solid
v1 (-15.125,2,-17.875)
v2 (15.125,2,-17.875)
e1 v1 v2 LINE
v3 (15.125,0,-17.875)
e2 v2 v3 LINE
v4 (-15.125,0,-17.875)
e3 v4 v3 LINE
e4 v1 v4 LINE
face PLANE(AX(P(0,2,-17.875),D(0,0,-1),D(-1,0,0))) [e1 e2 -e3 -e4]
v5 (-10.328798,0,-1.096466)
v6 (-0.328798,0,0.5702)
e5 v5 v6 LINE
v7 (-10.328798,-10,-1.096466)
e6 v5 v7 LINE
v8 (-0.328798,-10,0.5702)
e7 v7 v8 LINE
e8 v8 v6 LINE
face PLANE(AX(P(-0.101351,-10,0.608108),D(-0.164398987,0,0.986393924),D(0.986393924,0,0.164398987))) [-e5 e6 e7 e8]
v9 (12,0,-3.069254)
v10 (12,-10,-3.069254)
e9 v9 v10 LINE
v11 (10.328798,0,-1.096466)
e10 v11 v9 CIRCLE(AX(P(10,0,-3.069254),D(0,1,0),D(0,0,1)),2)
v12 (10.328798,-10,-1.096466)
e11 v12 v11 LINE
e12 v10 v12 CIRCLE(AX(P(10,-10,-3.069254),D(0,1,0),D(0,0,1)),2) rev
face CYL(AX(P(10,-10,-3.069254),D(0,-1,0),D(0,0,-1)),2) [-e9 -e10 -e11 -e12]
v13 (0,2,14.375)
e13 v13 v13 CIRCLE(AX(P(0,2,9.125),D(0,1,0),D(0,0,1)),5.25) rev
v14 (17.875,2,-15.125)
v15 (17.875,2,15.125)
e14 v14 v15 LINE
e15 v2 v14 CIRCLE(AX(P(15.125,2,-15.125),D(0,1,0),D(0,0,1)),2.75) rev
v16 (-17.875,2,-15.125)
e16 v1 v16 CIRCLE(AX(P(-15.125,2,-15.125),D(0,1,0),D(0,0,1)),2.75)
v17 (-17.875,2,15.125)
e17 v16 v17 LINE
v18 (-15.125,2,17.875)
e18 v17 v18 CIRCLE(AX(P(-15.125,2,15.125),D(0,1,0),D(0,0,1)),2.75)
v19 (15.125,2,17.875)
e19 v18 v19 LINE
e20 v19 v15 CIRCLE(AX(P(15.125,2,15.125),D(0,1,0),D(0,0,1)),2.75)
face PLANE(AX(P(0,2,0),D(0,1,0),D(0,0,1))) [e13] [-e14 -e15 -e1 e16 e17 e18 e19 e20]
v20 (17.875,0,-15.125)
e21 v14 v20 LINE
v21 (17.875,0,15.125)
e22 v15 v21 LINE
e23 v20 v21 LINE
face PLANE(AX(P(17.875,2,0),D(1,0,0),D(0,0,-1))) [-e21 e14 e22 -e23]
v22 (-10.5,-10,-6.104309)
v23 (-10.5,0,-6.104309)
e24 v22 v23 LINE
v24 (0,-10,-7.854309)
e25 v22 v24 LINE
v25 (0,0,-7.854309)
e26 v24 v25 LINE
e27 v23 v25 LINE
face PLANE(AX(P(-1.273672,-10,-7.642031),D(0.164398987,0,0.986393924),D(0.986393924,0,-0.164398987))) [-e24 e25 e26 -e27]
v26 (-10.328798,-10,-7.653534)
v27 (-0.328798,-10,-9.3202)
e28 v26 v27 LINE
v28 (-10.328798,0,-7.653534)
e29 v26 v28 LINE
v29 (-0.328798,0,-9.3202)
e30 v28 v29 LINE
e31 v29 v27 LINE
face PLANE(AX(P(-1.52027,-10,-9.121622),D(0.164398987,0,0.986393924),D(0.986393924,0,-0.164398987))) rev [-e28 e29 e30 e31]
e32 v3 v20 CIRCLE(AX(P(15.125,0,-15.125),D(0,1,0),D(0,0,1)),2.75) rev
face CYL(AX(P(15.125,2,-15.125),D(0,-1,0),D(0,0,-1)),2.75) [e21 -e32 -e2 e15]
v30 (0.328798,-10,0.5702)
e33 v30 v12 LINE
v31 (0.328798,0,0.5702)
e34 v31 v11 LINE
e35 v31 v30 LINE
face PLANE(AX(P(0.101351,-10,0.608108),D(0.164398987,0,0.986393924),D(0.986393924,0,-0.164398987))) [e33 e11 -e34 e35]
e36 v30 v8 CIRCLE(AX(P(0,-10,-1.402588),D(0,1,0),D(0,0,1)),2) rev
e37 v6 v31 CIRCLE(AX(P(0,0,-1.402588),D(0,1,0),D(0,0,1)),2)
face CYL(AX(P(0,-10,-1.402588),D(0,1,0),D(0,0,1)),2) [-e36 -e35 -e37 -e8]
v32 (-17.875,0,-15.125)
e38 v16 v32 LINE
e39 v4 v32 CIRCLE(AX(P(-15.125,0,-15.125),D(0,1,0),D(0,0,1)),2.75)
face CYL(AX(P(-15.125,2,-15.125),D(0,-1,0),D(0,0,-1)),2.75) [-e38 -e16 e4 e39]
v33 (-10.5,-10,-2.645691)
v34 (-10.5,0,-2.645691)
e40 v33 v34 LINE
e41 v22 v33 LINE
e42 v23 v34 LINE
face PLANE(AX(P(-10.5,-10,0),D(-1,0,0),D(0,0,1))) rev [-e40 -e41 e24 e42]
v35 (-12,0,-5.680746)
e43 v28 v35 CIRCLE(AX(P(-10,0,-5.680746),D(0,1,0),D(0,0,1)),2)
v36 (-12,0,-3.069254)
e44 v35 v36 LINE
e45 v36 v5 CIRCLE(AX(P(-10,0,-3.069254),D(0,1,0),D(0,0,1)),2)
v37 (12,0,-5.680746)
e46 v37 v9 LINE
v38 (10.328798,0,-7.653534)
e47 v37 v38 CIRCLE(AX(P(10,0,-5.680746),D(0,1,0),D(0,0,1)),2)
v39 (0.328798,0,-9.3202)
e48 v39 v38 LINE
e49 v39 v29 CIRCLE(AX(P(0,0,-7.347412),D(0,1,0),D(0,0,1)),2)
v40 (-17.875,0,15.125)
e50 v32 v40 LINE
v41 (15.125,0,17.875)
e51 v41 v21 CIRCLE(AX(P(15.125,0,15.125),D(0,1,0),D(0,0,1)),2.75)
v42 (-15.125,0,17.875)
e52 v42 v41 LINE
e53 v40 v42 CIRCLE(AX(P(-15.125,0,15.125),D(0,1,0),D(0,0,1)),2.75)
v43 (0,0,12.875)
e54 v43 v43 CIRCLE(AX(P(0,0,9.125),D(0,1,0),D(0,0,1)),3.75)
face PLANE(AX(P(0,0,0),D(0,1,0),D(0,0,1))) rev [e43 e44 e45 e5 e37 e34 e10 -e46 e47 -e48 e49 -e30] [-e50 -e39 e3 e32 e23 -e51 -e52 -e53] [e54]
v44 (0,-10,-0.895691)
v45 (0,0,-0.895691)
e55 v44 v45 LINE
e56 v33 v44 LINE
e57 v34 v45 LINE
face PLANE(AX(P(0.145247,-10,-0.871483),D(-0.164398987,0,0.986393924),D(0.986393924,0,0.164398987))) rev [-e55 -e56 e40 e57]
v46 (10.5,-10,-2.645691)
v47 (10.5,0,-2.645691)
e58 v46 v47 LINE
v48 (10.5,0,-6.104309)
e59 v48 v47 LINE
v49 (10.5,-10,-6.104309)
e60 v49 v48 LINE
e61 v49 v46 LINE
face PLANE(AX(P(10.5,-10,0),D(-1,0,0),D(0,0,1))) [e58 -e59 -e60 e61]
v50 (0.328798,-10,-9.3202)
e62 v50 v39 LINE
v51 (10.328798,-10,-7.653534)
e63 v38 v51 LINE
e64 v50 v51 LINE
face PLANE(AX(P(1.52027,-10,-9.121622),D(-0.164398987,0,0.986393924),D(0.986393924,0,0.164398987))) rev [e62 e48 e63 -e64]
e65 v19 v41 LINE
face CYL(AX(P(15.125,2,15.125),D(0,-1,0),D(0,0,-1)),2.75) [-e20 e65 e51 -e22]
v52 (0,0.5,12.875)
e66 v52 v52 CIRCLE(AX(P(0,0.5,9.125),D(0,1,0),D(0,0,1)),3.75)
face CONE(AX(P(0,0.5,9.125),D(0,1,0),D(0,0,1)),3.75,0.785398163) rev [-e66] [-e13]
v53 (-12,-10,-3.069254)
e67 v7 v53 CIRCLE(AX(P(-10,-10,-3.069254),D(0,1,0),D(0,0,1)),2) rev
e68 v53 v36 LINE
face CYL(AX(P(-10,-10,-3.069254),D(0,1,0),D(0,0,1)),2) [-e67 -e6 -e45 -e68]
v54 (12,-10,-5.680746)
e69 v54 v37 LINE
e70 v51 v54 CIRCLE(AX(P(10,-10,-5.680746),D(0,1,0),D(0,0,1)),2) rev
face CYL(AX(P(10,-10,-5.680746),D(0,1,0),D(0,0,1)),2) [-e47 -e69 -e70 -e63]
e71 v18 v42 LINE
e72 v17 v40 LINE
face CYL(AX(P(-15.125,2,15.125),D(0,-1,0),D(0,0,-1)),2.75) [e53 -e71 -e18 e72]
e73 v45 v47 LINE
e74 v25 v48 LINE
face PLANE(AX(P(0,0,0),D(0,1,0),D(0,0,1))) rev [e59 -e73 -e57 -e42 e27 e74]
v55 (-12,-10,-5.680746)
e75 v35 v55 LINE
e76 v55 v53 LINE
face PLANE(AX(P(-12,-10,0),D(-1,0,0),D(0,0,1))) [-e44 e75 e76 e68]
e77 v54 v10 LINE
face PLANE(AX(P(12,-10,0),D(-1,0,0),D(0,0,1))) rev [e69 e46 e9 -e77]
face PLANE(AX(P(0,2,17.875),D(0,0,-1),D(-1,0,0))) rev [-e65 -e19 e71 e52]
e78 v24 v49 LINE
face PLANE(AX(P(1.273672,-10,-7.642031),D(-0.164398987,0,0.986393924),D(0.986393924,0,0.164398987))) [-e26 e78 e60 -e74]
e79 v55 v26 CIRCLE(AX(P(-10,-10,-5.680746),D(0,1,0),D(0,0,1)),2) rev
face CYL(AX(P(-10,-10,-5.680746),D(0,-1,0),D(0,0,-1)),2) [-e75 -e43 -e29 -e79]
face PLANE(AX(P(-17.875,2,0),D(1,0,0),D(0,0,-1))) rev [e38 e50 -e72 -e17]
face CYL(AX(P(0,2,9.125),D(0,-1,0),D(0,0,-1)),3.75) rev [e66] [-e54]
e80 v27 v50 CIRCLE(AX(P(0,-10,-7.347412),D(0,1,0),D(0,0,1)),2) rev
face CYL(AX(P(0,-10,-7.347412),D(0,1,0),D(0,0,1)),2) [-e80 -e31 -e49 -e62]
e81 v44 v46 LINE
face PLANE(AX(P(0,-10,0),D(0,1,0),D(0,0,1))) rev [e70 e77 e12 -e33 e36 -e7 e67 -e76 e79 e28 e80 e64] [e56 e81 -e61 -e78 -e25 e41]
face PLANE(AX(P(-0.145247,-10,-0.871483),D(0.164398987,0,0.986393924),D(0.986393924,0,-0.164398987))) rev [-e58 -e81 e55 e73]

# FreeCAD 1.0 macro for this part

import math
import FreeCAD as App
import Part
import Sketcher

V = App.Vector
Q = App.Units.Quantity


def edges_at(feature, points):
    """Names of the edges that pass closest to the given points."""
    edges = feature.Shape.Edges
    near = lambda p: min(range(len(edges)), key=lambda i: edges[i].distToShape(Part.Vertex(*p))[0])
    return sorted({f"Edge{near(p) + 1}" for p in points})

doc = App.newDocument("Part")
body = doc.addObject("PartDesign::Body", "Body")

# Sketch on XZ plane
sketch1 = body.newObject("Sketcher::SketchObject", "Sketch")
sketch1.AttachmentSupport = (doc.getObject("XZ_Plane"), [""])
sketch1.MapMode = "FlatFace"
sketch1.addGeometry(Part.LineSegment(V(15.1, -17.9, 0), V(-15.1, -17.9, 0)), False)
sketch1.addGeometry(Part.ArcOfCircle(Part.Circle(V(-15.1, -15.1, 0), V(0, 0, 1), 2.8), math.radians(-180), math.radians(-90)), False)
sketch1.addGeometry(Part.LineSegment(V(-17.9, -15.1, 0), V(-17.9, 15.1, 0)), False)
sketch1.addGeometry(Part.ArcOfCircle(Part.Circle(V(-15.1, 15.1, 0), V(0, 0, 1), 2.8), math.radians(90), math.radians(180)), False)
sketch1.addGeometry(Part.LineSegment(V(-15.1, 17.9, 0), V(15.1, 17.9, 0)), False)
sketch1.addGeometry(Part.ArcOfCircle(Part.Circle(V(15.1, 15.1, 0), V(0, 0, 1), 2.8), math.radians(0), math.radians(90)), False)
sketch1.addGeometry(Part.LineSegment(V(17.9, 15.1, 0), V(17.9, -15.1, 0)), False)
sketch1.addGeometry(Part.ArcOfCircle(Part.Circle(V(15.1, -15.1, 0), V(0, 0, 1), 2.8), math.radians(-90), math.radians(0)), False)
sketch1.addGeometry(Part.Circle(V(0, 9.1, 0), V(0, 0, 1), 3.8), False)
sketch1.addConstraint(Sketcher.Constraint("Tangent", 0, 2, 1, 2))
sketch1.addConstraint(Sketcher.Constraint("Tangent", 1, 1, 2, 1))
sketch1.addConstraint(Sketcher.Constraint("Tangent", 2, 2, 3, 2))
sketch1.addConstraint(Sketcher.Constraint("Tangent", 3, 1, 4, 1))
sketch1.addConstraint(Sketcher.Constraint("Tangent", 4, 2, 5, 2))
sketch1.addConstraint(Sketcher.Constraint("Tangent", 5, 1, 6, 1))
sketch1.addConstraint(Sketcher.Constraint("Tangent", 6, 2, 7, 2))
sketch1.addConstraint(Sketcher.Constraint("Tangent", 7, 1, 0, 1))
sketch1.addConstraint(Sketcher.Constraint("Horizontal", 0))
sketch1.addConstraint(Sketcher.Constraint("Vertical", 2))
sketch1.addConstraint(Sketcher.Constraint("Horizontal", 4))
sketch1.addConstraint(Sketcher.Constraint("Vertical", 6))
sketch1.addConstraint(Sketcher.Constraint("Equal", 1, 3))
sketch1.addConstraint(Sketcher.Constraint("Equal", 3, 5))
sketch1.addConstraint(Sketcher.Constraint("Equal", 5, 7))
sketch1.addConstraint(Sketcher.Constraint("Symmetric", 1, 3, 5, 3, -1, 1))
sketch1.addConstraint(Sketcher.Constraint("PointOnObject", 8, 3, -2))
sketch1.addConstraint(Sketcher.Constraint("Equal", 4, 2))
sketch1.addConstraint(Sketcher.Constraint("Diameter", 8, Q("7.5 mm")))
sketch1.addConstraint(Sketcher.Constraint("Radius", 1, Q("2.75 mm")))
sketch1.addConstraint(Sketcher.Constraint("DistanceY", 8, 3, 3, 3, Q("6 mm")))
sketch1.addConstraint(Sketcher.Constraint("DistanceY", 0, 2, 8, 3, Q("27 mm")))
pad1 = body.newObject("PartDesign::Pad", "Pad")
pad1.Profile = sketch1
pad1.Length = 2
pad1.Reversed = True

# Sketch on XZ plane
sketch2 = body.newObject("Sketcher::SketchObject", "Sketch001")
sketch2.AttachmentSupport = (doc.getObject("XZ_Plane"), [""])
sketch2.MapMode = "FlatFace"
sketch2.addGeometry(Part.LineSegment(V(-12, -1.4, 0), V(0, 0.6, 0)), False)
sketch2.addGeometry(Part.LineSegment(V(0, 0.6, 0), V(12, -1.4, 0)), False)
sketch2.addGeometry(Part.LineSegment(V(12, -1.4, 0), V(12, -7.4, 0)), False)
sketch2.addGeometry(Part.LineSegment(V(12, -7.4, 0), V(0, -9.4, 0)), False)
sketch2.addGeometry(Part.LineSegment(V(0, -9.4, 0), V(-12, -7.4, 0)), False)
sketch2.addGeometry(Part.LineSegment(V(-12, -7.4, 0), V(-12, -1.4, 0)), False)
sketch2.addGeometry(Part.LineSegment(V(-10.5, -2.6, 0), V(-10.5, -6.1, 0)), False)
sketch2.addGeometry(Part.LineSegment(V(-10.5, -6.1, 0), V(0, -7.9, 0)), False)
sketch2.addGeometry(Part.LineSegment(V(0, -7.9, 0), V(10.5, -6.1, 0)), False)
sketch2.addGeometry(Part.LineSegment(V(10.5, -6.1, 0), V(10.5, -2.6, 0)), False)
sketch2.addGeometry(Part.LineSegment(V(10.5, -2.6, 0), V(0, -0.9, 0)), False)
sketch2.addGeometry(Part.LineSegment(V(0, -0.9, 0), V(-10.5, -2.6, 0)), False)
sketch2.addConstraint(Sketcher.Constraint("Coincident", 0, 2, 1, 1))
sketch2.addConstraint(Sketcher.Constraint("Coincident", 1, 2, 2, 1))
sketch2.addConstraint(Sketcher.Constraint("Coincident", 2, 2, 3, 1))
sketch2.addConstraint(Sketcher.Constraint("Coincident", 3, 2, 4, 1))
sketch2.addConstraint(Sketcher.Constraint("Coincident", 4, 2, 5, 1))
sketch2.addConstraint(Sketcher.Constraint("Coincident", 5, 2, 0, 1))
sketch2.addConstraint(Sketcher.Constraint("Coincident", 6, 2, 7, 1))
sketch2.addConstraint(Sketcher.Constraint("Coincident", 7, 2, 8, 1))
sketch2.addConstraint(Sketcher.Constraint("Coincident", 8, 2, 9, 1))
sketch2.addConstraint(Sketcher.Constraint("Coincident", 9, 2, 10, 1))
sketch2.addConstraint(Sketcher.Constraint("Coincident", 10, 2, 11, 1))
sketch2.addConstraint(Sketcher.Constraint("Coincident", 11, 2, 6, 1))
sketch2.addConstraint(Sketcher.Constraint("Vertical", 2))
sketch2.addConstraint(Sketcher.Constraint("Vertical", 5))
sketch2.addConstraint(Sketcher.Constraint("Vertical", 6))
sketch2.addConstraint(Sketcher.Constraint("Vertical", 9))
sketch2.addConstraint(Sketcher.Constraint("Symmetric", 2, 2, 4, 2, -2))
sketch2.addConstraint(Sketcher.Constraint("Symmetric", 6, 2, 8, 2, -2))
sketch2.addConstraint(Sketcher.Constraint("PointOnObject", 0, 2, -2))
sketch2.addConstraint(Sketcher.Constraint("PointOnObject", 3, 2, -2))
sketch2.addConstraint(Sketcher.Constraint("PointOnObject", 7, 2, -2))
sketch2.addConstraint(Sketcher.Constraint("PointOnObject", 10, 2, -2))
sketch2.addConstraint(Sketcher.Constraint("Parallel", 0, 3))
sketch2.addConstraint(Sketcher.Constraint("Parallel", 1, 4))
sketch2.addConstraint(Sketcher.Constraint("Parallel", 4, 7))
sketch2.addConstraint(Sketcher.Constraint("Parallel", 7, 10))
sketch2.addConstraint(Sketcher.Constraint("Parallel", 8, 11))
sketch2.addConstraint(Sketcher.Constraint("DistanceY", 2, 2, 2, 1, Q("6 mm")))
sketch2.addConstraint(Sketcher.Constraint("DistanceX", -1, 1, 1, 2, Q("12 mm")))
sketch2.addConstraint(Sketcher.Constraint("DistanceY", 1, 2, 0, 2, Q("2 mm")))
sketch2.addConstraint(Sketcher.Constraint("DistanceX", 6, 2, -1, 1, Q("10.5 mm")))
sketch2.addConstraint(Sketcher.Constraint("DistanceY", -1, 1, 0, 2, Q("0.625 mm")))
sketch2.addConstraint(Sketcher.Constraint("DistanceY", 6, 2, 6, 1, Q("3.458619 mm")))
sketch2.addConstraint(Sketcher.Constraint("DistanceY", 6, 2, -1, 1, Q("6.104309 mm")))
pad2 = body.newObject("PartDesign::Pad", "Pad001")
pad2.Profile = sketch2
pad2.Length = 10
doc.recompute()

fillet = body.newObject("PartDesign::Fillet", "Fillet")
fillet.Base = (pad2, edges_at(pad2, [
    (0, -5, 0.625),
    (-12, -5, -1.375),
    (-12, -5, -7.375),
    (0, -5, -9.375),
    (12, -5, -7.375),
    (12, -5, -1.375),
]))
fillet.Radius = 2
doc.recompute()

chamfer = body.newObject("PartDesign::Chamfer", "Chamfer")
chamfer.Base = (fillet, edges_at(fillet, [(0, 2, 5.375)]))
chamfer.Size = 1.5

doc.recompute()
